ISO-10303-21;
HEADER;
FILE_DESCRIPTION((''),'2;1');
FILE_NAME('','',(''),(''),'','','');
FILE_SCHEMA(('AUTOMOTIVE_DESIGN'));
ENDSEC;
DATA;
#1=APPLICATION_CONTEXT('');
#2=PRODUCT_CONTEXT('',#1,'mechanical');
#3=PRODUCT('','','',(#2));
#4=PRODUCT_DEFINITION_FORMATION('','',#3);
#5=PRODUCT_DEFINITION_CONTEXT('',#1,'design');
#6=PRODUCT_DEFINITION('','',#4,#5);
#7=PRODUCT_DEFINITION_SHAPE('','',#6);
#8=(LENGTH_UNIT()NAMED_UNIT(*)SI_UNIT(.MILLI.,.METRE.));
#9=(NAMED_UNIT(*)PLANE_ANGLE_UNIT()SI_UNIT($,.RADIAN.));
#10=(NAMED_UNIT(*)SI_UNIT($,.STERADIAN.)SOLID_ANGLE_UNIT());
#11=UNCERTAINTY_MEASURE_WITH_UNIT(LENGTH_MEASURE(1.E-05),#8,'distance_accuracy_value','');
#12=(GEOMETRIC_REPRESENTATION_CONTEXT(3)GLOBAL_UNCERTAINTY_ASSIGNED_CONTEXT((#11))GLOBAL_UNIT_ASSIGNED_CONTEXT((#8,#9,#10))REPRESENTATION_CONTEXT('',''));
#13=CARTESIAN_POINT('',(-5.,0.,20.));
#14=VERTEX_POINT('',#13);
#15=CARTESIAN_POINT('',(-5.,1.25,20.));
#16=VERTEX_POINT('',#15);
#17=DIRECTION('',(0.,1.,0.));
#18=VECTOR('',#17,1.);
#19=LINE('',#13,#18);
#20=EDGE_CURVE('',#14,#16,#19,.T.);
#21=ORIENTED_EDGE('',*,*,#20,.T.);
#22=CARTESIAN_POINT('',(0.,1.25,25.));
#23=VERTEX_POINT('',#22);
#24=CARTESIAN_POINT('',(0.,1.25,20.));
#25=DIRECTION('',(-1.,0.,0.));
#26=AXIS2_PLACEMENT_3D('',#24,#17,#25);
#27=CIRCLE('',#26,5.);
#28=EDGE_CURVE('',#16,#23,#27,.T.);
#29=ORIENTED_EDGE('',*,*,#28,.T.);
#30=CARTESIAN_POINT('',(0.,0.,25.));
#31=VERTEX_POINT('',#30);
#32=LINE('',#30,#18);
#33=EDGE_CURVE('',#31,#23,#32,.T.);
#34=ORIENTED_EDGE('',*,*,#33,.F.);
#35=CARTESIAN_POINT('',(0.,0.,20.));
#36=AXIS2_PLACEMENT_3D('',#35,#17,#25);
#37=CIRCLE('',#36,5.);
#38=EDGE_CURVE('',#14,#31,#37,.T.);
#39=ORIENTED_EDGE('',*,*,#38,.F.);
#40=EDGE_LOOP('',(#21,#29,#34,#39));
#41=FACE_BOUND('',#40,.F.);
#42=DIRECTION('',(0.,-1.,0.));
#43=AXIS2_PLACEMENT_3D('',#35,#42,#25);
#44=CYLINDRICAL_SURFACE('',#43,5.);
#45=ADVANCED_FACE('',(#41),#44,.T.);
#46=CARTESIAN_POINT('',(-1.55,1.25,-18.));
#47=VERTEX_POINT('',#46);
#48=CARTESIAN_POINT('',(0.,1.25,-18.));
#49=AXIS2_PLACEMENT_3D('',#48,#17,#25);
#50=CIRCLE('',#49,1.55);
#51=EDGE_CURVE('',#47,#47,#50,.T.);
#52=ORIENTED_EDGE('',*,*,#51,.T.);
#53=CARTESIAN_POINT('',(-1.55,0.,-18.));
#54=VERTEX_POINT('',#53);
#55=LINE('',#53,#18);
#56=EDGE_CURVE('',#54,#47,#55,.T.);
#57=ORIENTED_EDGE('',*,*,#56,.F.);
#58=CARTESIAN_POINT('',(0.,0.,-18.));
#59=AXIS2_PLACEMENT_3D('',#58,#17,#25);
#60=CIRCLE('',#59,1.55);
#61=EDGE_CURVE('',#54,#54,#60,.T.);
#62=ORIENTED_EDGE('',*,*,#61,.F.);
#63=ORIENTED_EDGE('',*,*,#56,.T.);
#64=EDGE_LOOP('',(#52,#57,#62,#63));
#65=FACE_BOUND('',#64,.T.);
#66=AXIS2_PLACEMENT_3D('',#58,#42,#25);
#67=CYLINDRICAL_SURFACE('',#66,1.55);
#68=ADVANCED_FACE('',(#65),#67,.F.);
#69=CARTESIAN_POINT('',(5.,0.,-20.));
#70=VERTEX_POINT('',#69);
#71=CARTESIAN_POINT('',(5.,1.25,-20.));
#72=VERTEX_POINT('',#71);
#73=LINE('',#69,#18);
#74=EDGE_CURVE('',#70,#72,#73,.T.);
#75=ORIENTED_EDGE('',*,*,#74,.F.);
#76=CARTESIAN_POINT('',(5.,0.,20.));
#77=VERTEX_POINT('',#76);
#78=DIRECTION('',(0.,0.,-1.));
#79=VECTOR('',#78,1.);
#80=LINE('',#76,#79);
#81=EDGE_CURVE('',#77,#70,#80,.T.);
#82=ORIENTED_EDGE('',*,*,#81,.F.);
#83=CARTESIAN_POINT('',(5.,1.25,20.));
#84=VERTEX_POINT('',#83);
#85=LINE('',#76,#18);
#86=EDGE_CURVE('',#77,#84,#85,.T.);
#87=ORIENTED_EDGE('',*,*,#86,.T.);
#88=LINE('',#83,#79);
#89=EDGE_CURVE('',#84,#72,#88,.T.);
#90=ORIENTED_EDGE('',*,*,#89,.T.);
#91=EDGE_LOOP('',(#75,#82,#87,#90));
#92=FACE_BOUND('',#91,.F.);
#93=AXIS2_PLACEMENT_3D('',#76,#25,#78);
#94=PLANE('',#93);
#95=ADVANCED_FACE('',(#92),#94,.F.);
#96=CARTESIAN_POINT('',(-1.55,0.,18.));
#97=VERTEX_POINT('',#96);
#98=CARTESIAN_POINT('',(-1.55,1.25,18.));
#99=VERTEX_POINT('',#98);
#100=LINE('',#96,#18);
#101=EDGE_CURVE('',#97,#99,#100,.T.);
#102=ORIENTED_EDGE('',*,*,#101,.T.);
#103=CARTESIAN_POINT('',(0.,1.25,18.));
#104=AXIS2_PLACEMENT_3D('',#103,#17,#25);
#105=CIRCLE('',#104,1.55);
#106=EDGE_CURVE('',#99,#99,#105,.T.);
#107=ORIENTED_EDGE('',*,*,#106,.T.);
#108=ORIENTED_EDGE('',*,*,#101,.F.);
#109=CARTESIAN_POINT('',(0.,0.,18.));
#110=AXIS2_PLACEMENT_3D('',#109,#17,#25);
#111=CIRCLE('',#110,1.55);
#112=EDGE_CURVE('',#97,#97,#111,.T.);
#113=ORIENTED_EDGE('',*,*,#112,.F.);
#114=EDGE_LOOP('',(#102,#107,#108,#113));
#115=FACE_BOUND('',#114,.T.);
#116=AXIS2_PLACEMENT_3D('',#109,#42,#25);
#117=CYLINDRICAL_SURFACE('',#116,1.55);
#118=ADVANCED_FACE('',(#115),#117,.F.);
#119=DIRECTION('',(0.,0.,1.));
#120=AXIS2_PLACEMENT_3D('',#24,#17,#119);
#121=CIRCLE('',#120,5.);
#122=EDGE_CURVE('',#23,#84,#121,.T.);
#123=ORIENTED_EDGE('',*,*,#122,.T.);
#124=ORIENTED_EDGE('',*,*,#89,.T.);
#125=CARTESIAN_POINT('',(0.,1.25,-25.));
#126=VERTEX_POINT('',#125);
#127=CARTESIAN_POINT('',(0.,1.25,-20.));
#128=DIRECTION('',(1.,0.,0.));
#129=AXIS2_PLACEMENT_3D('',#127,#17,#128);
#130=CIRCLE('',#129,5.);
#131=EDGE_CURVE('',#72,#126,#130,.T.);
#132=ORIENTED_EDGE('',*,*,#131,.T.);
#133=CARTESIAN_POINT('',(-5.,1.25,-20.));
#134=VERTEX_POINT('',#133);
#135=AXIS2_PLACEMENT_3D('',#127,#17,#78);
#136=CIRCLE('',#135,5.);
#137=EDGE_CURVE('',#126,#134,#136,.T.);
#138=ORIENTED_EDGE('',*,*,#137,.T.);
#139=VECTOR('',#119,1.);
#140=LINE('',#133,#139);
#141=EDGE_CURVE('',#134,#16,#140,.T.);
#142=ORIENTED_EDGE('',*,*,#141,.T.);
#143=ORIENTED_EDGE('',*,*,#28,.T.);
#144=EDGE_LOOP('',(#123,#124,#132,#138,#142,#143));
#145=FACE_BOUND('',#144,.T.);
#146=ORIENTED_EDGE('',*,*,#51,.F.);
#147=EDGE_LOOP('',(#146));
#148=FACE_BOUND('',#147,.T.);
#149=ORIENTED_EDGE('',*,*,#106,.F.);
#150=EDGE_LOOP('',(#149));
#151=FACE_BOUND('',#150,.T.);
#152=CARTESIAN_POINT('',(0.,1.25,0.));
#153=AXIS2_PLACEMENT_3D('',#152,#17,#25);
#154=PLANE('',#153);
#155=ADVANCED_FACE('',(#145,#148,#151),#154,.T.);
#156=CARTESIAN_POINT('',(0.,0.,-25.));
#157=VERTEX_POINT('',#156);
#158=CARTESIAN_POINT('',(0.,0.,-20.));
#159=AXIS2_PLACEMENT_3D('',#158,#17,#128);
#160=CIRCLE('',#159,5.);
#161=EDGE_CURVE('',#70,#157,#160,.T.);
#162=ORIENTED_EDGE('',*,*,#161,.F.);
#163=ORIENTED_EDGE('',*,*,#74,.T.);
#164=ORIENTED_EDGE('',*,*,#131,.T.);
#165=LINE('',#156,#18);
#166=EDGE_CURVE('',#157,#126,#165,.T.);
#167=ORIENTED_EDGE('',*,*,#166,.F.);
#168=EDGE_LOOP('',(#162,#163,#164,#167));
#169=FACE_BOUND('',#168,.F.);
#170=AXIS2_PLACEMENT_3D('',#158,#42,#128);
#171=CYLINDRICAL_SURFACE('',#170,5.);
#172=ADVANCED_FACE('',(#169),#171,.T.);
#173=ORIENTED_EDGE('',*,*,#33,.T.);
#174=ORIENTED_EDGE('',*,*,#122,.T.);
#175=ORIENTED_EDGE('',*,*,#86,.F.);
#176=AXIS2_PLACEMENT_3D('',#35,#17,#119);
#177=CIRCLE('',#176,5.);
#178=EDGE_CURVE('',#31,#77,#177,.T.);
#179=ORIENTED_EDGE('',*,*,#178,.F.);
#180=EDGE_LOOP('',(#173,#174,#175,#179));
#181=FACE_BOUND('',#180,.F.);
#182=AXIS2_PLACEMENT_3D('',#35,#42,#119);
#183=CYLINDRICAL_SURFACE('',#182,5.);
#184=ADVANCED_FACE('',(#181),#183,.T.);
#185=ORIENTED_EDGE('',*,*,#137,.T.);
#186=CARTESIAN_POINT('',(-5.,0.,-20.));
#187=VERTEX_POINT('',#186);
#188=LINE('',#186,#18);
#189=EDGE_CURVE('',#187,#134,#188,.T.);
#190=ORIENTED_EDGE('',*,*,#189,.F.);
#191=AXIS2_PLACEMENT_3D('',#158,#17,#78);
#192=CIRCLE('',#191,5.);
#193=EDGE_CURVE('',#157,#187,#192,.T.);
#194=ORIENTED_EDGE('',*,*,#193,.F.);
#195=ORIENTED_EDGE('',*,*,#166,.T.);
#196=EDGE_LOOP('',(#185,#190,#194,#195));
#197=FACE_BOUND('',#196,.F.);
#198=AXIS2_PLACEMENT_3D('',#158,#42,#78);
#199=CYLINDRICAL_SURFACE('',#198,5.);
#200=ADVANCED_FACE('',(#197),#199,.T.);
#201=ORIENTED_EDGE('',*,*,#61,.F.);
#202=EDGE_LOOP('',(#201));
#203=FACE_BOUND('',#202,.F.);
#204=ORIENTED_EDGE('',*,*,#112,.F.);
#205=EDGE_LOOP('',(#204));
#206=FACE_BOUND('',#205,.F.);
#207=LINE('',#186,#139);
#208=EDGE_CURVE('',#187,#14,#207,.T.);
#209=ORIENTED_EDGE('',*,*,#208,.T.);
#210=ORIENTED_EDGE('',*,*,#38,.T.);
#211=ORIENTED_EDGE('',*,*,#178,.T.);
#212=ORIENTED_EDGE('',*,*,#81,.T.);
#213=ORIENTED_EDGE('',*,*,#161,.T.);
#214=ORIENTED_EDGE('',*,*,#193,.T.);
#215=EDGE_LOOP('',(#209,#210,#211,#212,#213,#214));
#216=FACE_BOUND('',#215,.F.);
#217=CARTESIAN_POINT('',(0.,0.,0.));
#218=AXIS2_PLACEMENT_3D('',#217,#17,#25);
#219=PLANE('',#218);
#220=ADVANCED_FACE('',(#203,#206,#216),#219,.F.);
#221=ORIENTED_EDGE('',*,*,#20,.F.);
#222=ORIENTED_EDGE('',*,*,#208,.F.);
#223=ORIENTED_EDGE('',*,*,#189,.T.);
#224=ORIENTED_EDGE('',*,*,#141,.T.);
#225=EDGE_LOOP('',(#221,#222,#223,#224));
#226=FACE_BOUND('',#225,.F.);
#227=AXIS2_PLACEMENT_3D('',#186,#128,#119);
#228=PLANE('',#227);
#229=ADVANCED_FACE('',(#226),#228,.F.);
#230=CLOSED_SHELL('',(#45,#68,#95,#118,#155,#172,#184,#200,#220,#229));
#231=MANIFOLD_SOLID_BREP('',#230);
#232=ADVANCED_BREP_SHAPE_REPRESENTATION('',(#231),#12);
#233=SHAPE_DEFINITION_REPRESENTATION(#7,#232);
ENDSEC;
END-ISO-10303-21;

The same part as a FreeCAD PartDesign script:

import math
import FreeCAD as App
import Part
import Sketcher

V = App.Vector

doc = App.newDocument("Part")
body = doc.addObject("PartDesign::Body", "Body")

sketch1 = body.newObject("Sketcher::SketchObject", "Sketch")
sketch1.AttachmentSupport = (doc.getObject("XZ_Plane"), [""])
sketch1.MapMode = "FlatFace"
sketch1.addGeometry([
    Part.ArcOfCircle(Part.Circle(V(0, 20, 0), V(0, 0, 1), 5), math.radians(0), math.radians(180)),
    Part.LineSegment(V(5, 20, 0), V(5, -20, 0)),
    Part.ArcOfCircle(Part.Circle(V(0, -20, 0), V(0, 0, 1), 5), math.radians(180), math.radians(360)),
    Part.LineSegment(V(-5, -20, 0), V(-5, 20, 0)),
    Part.Circle(V(0, -18, 0), V(0, 0, 1), 1.6),
    Part.Circle(V(0, 18, 0), V(0, 0, 1), 1.6),
], False)
sketch1.addConstraint([
    Sketcher.Constraint("Tangent", 0, 1, 1, 1),
    Sketcher.Constraint("Tangent", 1, 2, 2, 2),
    Sketcher.Constraint("Tangent", 2, 1, 3, 1),
    Sketcher.Constraint("Tangent", 3, 2, 0, 2),
    Sketcher.Constraint("Vertical", 1),
    Sketcher.Constraint("Vertical", 3),
    Sketcher.Constraint("Equal", 4, 5),
    Sketcher.Constraint("Symmetric", 0, 3, 2, 3, -1, 1),
    Sketcher.Constraint("Symmetric", 4, 3, 5, 3, -1, 1),
    Sketcher.Constraint("PointOnObject", 4, 3, -2),
    Sketcher.Constraint("Radius", 0, 5.0),
    Sketcher.Constraint("Diameter", 4, 3.1),
    Sketcher.Constraint("DistanceY", 1, 2, 1, 1, 40.0),
    Sketcher.Constraint("DistanceY", 4, 3, -1, 1, 18.0),
])
pad1 = body.newObject("PartDesign::Pad", "Pad")
pad1.Profile = sketch1
pad1.Length = 1.25
pad1.Reversed = True

doc.recompute()
